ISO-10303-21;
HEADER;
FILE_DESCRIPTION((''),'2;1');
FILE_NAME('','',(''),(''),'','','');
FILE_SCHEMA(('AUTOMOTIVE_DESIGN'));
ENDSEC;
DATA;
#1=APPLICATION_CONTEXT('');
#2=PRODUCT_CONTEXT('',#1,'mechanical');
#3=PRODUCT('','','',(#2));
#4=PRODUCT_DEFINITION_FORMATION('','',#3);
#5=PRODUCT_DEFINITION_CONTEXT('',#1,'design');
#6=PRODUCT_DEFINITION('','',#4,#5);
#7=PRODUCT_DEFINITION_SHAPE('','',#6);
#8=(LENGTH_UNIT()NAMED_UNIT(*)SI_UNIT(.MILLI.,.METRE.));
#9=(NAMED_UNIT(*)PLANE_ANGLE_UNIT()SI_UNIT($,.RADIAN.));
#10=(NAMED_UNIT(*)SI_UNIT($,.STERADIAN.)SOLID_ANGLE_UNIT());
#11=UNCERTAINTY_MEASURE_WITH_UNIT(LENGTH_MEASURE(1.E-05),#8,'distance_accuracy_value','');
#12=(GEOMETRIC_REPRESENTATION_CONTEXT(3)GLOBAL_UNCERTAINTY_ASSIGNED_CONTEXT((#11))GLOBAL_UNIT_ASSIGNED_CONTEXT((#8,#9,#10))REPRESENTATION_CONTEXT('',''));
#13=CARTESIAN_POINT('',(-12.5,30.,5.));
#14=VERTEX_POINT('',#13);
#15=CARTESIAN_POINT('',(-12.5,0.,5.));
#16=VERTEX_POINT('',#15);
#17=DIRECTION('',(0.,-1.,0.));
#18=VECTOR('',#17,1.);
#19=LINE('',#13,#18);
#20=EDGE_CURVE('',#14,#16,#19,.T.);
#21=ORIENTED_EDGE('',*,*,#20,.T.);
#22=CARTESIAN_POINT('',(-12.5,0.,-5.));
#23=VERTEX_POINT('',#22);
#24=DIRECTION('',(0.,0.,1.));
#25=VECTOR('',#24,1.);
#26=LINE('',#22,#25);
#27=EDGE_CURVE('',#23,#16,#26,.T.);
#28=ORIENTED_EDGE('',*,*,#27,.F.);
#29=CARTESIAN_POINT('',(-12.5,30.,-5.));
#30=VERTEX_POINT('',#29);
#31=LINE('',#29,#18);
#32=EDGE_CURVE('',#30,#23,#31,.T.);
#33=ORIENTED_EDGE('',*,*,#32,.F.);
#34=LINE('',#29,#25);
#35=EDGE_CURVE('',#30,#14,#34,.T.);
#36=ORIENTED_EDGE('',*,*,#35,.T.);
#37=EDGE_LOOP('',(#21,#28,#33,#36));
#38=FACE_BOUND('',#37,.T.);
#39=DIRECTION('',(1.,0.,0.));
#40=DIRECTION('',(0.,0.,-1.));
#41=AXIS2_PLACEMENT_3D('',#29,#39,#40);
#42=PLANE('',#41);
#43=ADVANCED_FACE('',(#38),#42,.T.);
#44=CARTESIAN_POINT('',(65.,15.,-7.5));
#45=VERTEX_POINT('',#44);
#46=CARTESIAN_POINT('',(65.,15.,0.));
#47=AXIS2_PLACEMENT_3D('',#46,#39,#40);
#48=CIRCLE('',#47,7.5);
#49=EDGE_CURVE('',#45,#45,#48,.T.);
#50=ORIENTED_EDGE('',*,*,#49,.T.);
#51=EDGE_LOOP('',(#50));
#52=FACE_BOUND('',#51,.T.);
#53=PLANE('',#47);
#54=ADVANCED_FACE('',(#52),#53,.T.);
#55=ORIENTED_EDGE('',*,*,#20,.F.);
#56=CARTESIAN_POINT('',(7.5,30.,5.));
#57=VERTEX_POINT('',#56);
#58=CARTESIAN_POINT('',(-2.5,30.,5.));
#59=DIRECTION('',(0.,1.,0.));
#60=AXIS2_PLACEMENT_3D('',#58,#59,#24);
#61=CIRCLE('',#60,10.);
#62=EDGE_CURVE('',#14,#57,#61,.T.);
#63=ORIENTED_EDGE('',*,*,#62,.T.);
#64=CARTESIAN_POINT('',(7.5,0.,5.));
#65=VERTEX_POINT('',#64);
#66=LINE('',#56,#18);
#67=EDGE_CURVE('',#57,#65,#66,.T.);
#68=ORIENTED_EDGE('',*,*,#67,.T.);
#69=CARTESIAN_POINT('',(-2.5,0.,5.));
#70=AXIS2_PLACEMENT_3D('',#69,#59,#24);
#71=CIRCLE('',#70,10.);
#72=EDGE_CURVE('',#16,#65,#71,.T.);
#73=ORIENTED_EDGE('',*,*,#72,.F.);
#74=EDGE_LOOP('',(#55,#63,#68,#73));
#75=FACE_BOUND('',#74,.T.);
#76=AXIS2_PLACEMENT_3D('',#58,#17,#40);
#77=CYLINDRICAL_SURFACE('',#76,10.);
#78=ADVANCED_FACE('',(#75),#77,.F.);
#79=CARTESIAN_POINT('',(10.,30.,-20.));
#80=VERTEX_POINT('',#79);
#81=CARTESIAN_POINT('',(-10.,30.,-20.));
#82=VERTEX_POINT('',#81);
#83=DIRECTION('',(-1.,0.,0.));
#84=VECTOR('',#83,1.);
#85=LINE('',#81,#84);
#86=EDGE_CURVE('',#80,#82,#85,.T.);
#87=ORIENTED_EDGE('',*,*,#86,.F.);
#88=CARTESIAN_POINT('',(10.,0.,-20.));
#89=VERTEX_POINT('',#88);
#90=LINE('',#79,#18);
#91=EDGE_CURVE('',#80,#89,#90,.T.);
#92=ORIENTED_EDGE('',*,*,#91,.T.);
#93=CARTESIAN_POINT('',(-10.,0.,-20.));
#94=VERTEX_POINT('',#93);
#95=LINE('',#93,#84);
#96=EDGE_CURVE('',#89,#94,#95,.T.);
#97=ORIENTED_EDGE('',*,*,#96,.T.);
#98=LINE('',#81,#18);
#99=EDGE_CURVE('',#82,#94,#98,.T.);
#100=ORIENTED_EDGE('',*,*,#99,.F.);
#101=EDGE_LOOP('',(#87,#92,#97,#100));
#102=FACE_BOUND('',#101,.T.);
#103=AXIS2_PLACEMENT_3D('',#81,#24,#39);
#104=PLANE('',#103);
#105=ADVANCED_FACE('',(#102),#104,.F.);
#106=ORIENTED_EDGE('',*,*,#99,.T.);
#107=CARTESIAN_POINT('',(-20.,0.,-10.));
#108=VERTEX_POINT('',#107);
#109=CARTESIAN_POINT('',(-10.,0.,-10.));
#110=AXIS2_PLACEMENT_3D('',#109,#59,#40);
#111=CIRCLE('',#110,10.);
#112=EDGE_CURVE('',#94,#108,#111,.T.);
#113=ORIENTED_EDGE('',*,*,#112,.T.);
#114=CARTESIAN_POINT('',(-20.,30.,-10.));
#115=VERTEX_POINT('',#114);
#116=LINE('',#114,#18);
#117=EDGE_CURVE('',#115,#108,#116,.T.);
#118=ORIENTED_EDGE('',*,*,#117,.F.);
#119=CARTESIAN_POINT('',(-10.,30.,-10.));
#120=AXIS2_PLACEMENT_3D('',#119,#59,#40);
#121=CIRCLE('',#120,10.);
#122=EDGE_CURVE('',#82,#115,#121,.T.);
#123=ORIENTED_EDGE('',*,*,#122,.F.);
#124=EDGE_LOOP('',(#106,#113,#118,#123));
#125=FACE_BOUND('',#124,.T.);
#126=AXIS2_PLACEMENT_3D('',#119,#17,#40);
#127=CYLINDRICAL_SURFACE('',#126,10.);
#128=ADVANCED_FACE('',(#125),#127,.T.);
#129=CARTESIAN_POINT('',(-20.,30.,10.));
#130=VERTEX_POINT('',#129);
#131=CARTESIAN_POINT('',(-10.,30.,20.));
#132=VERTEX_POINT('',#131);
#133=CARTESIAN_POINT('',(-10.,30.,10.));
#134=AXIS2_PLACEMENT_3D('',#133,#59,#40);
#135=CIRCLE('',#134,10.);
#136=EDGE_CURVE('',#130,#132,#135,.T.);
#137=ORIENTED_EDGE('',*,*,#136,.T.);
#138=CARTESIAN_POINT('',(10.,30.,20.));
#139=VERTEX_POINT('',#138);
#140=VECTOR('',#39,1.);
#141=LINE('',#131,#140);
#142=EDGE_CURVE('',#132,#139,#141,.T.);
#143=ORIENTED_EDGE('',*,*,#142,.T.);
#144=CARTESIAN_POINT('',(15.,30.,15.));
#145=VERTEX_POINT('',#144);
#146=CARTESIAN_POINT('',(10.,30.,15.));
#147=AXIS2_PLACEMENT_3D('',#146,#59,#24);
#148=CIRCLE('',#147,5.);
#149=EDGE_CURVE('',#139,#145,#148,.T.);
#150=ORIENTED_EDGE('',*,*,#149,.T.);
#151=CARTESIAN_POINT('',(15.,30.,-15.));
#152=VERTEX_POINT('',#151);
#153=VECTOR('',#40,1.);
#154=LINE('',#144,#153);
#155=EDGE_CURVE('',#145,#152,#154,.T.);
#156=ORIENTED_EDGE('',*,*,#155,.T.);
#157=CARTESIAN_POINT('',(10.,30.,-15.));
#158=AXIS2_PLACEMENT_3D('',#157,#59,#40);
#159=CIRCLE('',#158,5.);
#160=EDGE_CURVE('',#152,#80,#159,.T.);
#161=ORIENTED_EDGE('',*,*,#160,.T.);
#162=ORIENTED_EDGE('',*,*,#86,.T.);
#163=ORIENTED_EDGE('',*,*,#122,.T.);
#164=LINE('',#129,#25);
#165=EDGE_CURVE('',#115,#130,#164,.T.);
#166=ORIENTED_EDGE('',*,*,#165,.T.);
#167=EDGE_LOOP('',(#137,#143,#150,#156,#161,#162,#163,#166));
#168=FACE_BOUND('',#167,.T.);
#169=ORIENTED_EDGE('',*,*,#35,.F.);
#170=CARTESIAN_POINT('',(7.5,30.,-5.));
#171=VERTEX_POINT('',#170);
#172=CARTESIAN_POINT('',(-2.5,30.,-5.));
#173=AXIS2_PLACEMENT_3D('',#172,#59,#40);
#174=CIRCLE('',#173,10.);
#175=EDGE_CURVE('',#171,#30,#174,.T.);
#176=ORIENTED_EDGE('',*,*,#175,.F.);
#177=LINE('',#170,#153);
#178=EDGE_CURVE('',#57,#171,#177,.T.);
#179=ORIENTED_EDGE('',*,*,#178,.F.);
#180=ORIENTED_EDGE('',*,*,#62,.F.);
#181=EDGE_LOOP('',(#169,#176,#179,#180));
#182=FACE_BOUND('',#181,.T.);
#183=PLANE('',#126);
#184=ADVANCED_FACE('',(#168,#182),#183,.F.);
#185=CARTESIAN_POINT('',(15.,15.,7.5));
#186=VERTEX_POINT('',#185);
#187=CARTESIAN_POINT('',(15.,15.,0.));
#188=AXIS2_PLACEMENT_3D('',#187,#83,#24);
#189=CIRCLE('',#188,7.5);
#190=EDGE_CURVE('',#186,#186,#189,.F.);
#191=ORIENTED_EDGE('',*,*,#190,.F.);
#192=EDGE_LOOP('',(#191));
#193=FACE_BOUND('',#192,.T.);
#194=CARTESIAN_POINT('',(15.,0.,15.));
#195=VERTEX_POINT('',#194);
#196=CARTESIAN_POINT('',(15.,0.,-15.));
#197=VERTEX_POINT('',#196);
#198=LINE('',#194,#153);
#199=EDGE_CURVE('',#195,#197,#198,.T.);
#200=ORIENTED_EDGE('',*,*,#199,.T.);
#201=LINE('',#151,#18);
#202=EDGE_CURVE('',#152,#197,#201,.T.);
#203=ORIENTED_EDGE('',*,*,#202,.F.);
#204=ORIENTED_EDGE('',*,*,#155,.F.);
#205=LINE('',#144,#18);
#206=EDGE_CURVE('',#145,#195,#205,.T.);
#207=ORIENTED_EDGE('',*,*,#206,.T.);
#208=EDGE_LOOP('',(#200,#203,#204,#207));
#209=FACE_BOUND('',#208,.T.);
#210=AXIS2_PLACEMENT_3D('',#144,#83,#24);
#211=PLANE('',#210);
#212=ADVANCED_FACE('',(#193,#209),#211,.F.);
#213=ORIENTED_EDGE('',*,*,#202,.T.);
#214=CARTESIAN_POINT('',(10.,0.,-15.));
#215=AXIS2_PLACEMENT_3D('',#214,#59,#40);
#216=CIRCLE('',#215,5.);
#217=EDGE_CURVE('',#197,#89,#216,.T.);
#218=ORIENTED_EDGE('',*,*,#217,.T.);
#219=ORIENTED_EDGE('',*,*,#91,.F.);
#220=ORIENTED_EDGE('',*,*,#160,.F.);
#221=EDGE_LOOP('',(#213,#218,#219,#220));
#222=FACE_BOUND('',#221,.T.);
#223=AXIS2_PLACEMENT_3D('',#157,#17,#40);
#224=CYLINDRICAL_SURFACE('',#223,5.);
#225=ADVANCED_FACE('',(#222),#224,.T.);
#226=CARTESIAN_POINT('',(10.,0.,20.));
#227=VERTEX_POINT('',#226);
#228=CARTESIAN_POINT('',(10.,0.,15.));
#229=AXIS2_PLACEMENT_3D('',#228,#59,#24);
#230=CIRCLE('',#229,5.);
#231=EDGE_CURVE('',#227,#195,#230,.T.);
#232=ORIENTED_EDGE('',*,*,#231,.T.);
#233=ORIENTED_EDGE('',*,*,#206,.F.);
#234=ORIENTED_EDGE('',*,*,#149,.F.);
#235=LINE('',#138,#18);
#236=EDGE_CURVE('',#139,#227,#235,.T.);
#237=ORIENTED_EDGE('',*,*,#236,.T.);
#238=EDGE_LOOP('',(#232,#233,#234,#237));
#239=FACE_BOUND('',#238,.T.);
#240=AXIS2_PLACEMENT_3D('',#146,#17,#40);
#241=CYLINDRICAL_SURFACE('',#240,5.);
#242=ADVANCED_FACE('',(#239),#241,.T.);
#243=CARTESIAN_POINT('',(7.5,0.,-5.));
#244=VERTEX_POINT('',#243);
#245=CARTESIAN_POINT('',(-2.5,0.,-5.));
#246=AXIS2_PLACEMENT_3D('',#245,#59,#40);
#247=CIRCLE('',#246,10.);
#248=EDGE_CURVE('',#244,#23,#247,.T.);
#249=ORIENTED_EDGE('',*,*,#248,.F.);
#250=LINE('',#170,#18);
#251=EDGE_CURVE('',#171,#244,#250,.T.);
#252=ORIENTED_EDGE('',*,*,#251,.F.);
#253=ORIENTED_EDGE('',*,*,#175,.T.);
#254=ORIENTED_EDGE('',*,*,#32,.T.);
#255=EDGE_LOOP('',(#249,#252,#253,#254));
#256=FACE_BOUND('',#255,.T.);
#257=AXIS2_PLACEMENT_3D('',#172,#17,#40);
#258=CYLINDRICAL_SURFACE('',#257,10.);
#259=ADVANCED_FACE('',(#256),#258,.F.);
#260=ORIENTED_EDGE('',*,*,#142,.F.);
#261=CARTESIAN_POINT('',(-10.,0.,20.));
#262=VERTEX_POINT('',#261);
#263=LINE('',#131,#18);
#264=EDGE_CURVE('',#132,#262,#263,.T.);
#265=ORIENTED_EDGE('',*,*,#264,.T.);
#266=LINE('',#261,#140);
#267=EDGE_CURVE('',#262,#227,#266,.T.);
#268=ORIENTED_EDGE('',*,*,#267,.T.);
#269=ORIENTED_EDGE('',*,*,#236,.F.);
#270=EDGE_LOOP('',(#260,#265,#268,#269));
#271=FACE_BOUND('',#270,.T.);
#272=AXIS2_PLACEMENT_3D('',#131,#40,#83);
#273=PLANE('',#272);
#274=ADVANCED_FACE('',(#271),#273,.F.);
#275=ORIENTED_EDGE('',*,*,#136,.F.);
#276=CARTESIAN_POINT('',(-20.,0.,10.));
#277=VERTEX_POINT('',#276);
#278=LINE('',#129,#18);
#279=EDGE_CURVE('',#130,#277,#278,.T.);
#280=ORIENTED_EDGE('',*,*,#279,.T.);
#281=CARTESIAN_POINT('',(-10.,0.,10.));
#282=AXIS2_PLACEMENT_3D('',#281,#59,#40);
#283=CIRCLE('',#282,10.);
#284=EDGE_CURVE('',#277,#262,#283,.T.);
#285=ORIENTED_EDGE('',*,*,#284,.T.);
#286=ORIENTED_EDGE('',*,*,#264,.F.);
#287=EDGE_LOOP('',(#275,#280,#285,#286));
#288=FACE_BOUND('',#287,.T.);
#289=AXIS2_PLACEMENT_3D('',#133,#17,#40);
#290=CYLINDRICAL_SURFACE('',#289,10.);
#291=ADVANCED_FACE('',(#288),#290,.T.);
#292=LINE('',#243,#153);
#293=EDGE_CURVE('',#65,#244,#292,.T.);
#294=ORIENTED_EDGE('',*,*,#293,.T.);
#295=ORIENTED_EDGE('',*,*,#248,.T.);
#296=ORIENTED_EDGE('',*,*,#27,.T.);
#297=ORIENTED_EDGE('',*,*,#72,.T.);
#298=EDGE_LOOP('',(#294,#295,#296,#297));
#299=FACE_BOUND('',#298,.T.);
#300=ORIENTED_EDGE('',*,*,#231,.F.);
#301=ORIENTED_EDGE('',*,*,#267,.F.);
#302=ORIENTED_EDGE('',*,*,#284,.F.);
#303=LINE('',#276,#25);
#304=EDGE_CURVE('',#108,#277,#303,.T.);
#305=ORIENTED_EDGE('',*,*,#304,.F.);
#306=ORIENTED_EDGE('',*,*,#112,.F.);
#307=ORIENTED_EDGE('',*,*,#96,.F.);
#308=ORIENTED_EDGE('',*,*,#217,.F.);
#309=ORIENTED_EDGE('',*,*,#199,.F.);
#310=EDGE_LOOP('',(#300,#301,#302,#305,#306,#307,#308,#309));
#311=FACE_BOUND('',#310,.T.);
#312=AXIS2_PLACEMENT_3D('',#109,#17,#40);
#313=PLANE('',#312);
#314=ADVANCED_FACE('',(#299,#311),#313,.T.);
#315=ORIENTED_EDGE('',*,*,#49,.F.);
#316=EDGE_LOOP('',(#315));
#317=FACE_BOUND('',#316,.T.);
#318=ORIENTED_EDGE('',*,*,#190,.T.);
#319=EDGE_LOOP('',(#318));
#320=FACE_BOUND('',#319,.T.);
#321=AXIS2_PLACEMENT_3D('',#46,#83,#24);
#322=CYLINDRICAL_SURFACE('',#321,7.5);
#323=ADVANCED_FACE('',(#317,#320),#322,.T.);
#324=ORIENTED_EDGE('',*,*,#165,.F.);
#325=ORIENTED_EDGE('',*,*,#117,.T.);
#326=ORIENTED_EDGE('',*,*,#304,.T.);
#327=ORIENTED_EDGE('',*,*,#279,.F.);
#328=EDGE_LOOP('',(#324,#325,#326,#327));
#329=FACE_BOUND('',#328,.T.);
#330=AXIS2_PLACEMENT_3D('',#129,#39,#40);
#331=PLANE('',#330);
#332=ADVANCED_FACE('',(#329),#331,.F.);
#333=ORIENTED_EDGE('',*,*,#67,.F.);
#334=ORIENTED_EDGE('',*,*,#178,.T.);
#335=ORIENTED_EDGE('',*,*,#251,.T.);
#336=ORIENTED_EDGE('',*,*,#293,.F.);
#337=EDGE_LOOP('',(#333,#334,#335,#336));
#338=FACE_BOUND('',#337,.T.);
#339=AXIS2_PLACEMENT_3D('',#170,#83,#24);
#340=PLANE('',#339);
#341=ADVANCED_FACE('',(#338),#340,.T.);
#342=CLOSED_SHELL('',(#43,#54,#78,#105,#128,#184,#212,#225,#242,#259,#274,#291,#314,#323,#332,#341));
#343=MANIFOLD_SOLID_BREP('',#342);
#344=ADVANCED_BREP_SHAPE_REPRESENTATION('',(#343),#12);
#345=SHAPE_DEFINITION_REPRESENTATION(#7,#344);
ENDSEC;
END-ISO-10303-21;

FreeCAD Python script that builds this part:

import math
import FreeCAD as App
import Part
import Sketcher

doc = App.newDocument("Part")
body = doc.addObject("PartDesign::Body", "Body")

# Sketch on XZ plane
sketch1 = body.newObject("Sketcher::SketchObject", "Sketch")
sketch1.AttachmentSupport = (doc.getObject("XZ_Plane"), [""])
sketch1.MapMode = "FlatFace"
sketch1.addGeometry(Part.LineSegment(App.Vector(10, -20, 0), App.Vector(-10, -20, 0)), False)
sketch1.addGeometry(Part.ArcOfCircle(Part.Circle(App.Vector(-10, -10, 0), App.Vector(0, 0, 1), 10), math.radians(180), math.radians(270)), False)
sketch1.addGeometry(Part.LineSegment(App.Vector(-20, -10, 0), App.Vector(-20, 10, 0)), False)
sketch1.addGeometry(Part.ArcOfCircle(Part.Circle(App.Vector(-10, 10, 0), App.Vector(0, 0, 1), 10), math.radians(90), math.radians(180)), False)
sketch1.addGeometry(Part.LineSegment(App.Vector(-10, 20, 0), App.Vector(10, 20, 0)), False)
sketch1.addGeometry(Part.ArcOfCircle(Part.Circle(App.Vector(10, 15, 0), App.Vector(0, 0, 1), 5), math.radians(0), math.radians(90)), False)
sketch1.addGeometry(Part.LineSegment(App.Vector(15, 15, 0), App.Vector(15, -15, 0)), False)
sketch1.addGeometry(Part.ArcOfCircle(Part.Circle(App.Vector(10, -15, 0), App.Vector(0, 0, 1), 5), math.radians(-90), math.radians(0)), False)
sketch1.addGeometry(Part.ArcOfCircle(Part.Circle(App.Vector(-2, -5, 0), App.Vector(0, 0, 1), 10), math.radians(180), math.radians(360)), False)
sketch1.addGeometry(Part.LineSegment(App.Vector(8, -5, 0), App.Vector(8, 5, 0)), False)
sketch1.addGeometry(Part.ArcOfCircle(Part.Circle(App.Vector(-2, 5, 0), App.Vector(0, 0, 1), 10), math.radians(0), math.radians(180)), False)
sketch1.addGeometry(Part.LineSegment(App.Vector(-12, 5, 0), App.Vector(-12, -5, 0)), False)
sketch1.addConstraint(Sketcher.Constraint("Tangent", 0, 2, 1, 2))
sketch1.addConstraint(Sketcher.Constraint("Tangent", 1, 1, 2, 1))
sketch1.addConstraint(Sketcher.Constraint("Tangent", 2, 2, 3, 2))
sketch1.addConstraint(Sketcher.Constraint("Tangent", 3, 1, 4, 1))
sketch1.addConstraint(Sketcher.Constraint("Tangent", 4, 2, 5, 2))
sketch1.addConstraint(Sketcher.Constraint("Tangent", 5, 1, 6, 1))
sketch1.addConstraint(Sketcher.Constraint("Tangent", 6, 2, 7, 2))
sketch1.addConstraint(Sketcher.Constraint("Tangent", 7, 1, 0, 1))
sketch1.addConstraint(Sketcher.Constraint("Tangent", 8, 2, 9, 1))
sketch1.addConstraint(Sketcher.Constraint("Tangent", 9, 2, 10, 1))
sketch1.addConstraint(Sketcher.Constraint("Tangent", 10, 2, 11, 1))
sketch1.addConstraint(Sketcher.Constraint("Tangent", 11, 2, 8, 1))
sketch1.addConstraint(Sketcher.Constraint("Horizontal", 0))
sketch1.addConstraint(Sketcher.Constraint("Vertical", 2))
sketch1.addConstraint(Sketcher.Constraint("Horizontal", 4))
sketch1.addConstraint(Sketcher.Constraint("Vertical", 6))
sketch1.addConstraint(Sketcher.Constraint("Vertical", 9))
sketch1.addConstraint(Sketcher.Constraint("Vertical", 11))
sketch1.addConstraint(Sketcher.Constraint("Equal", 1, 3))
sketch1.addConstraint(Sketcher.Constraint("Equal", 5, 7))
sketch1.addConstraint(Sketcher.Constraint("Equal", 3, 8))
sketch1.addConstraint(Sketcher.Constraint("Symmetric", 0, 2, 4, 2, -1, 1))
sketch1.addConstraint(Sketcher.Constraint("Equal", 4, 2))
sketch1.addConstraint(Sketcher.Constraint("Radius", 1, 10.0))
sketch1.addConstraint(Sketcher.Constraint("Radius", 5, 5.0))
sketch1.addConstraint(Sketcher.Constraint("DistanceX", 0, 2, 0, 1, 20.0))
sketch1.addConstraint(Sketcher.Constraint("DistanceY", 9, 1, 9, 2, 10.0))
sketch1.addConstraint(Sketcher.Constraint("DistanceY", 8, 3, -1, 1, 5.0))
sketch1.addConstraint(Sketcher.Constraint("DistanceX", 8, 3, -1, 1, 2.5))
pad1 = body.newObject("PartDesign::Pad", "Pad")
pad1.Profile = sketch1
pad1.Length = 30
pad1.Reversed = True

# Sketch on YZ plane
sketch2 = body.newObject("Sketcher::SketchObject", "Sketch001")
sketch2.AttachmentSupport = (doc.getObject("YZ_Plane"), [""])
sketch2.MapMode = "FlatFace"
sketch2.AttachmentOffset = App.Placement(App.Vector(0, 0, 15), App.Rotation())
sketch2.addGeometry(Part.Circle(App.Vector(15, 0, 0), App.Vector(0, 0, 1), 8), False)
sketch2.addConstraint(Sketcher.Constraint("PointOnObject", 0, 3, -1))
sketch2.addConstraint(Sketcher.Constraint("Diameter", 0, 15.0))
sketch2.addConstraint(Sketcher.Constraint("DistanceX", -1, 1, 0, 3, 15.0))
pad2 = body.newObject("PartDesign::Pad", "Pad001")
pad2.Profile = sketch2
pad2.Length = 50

doc.recompute()
